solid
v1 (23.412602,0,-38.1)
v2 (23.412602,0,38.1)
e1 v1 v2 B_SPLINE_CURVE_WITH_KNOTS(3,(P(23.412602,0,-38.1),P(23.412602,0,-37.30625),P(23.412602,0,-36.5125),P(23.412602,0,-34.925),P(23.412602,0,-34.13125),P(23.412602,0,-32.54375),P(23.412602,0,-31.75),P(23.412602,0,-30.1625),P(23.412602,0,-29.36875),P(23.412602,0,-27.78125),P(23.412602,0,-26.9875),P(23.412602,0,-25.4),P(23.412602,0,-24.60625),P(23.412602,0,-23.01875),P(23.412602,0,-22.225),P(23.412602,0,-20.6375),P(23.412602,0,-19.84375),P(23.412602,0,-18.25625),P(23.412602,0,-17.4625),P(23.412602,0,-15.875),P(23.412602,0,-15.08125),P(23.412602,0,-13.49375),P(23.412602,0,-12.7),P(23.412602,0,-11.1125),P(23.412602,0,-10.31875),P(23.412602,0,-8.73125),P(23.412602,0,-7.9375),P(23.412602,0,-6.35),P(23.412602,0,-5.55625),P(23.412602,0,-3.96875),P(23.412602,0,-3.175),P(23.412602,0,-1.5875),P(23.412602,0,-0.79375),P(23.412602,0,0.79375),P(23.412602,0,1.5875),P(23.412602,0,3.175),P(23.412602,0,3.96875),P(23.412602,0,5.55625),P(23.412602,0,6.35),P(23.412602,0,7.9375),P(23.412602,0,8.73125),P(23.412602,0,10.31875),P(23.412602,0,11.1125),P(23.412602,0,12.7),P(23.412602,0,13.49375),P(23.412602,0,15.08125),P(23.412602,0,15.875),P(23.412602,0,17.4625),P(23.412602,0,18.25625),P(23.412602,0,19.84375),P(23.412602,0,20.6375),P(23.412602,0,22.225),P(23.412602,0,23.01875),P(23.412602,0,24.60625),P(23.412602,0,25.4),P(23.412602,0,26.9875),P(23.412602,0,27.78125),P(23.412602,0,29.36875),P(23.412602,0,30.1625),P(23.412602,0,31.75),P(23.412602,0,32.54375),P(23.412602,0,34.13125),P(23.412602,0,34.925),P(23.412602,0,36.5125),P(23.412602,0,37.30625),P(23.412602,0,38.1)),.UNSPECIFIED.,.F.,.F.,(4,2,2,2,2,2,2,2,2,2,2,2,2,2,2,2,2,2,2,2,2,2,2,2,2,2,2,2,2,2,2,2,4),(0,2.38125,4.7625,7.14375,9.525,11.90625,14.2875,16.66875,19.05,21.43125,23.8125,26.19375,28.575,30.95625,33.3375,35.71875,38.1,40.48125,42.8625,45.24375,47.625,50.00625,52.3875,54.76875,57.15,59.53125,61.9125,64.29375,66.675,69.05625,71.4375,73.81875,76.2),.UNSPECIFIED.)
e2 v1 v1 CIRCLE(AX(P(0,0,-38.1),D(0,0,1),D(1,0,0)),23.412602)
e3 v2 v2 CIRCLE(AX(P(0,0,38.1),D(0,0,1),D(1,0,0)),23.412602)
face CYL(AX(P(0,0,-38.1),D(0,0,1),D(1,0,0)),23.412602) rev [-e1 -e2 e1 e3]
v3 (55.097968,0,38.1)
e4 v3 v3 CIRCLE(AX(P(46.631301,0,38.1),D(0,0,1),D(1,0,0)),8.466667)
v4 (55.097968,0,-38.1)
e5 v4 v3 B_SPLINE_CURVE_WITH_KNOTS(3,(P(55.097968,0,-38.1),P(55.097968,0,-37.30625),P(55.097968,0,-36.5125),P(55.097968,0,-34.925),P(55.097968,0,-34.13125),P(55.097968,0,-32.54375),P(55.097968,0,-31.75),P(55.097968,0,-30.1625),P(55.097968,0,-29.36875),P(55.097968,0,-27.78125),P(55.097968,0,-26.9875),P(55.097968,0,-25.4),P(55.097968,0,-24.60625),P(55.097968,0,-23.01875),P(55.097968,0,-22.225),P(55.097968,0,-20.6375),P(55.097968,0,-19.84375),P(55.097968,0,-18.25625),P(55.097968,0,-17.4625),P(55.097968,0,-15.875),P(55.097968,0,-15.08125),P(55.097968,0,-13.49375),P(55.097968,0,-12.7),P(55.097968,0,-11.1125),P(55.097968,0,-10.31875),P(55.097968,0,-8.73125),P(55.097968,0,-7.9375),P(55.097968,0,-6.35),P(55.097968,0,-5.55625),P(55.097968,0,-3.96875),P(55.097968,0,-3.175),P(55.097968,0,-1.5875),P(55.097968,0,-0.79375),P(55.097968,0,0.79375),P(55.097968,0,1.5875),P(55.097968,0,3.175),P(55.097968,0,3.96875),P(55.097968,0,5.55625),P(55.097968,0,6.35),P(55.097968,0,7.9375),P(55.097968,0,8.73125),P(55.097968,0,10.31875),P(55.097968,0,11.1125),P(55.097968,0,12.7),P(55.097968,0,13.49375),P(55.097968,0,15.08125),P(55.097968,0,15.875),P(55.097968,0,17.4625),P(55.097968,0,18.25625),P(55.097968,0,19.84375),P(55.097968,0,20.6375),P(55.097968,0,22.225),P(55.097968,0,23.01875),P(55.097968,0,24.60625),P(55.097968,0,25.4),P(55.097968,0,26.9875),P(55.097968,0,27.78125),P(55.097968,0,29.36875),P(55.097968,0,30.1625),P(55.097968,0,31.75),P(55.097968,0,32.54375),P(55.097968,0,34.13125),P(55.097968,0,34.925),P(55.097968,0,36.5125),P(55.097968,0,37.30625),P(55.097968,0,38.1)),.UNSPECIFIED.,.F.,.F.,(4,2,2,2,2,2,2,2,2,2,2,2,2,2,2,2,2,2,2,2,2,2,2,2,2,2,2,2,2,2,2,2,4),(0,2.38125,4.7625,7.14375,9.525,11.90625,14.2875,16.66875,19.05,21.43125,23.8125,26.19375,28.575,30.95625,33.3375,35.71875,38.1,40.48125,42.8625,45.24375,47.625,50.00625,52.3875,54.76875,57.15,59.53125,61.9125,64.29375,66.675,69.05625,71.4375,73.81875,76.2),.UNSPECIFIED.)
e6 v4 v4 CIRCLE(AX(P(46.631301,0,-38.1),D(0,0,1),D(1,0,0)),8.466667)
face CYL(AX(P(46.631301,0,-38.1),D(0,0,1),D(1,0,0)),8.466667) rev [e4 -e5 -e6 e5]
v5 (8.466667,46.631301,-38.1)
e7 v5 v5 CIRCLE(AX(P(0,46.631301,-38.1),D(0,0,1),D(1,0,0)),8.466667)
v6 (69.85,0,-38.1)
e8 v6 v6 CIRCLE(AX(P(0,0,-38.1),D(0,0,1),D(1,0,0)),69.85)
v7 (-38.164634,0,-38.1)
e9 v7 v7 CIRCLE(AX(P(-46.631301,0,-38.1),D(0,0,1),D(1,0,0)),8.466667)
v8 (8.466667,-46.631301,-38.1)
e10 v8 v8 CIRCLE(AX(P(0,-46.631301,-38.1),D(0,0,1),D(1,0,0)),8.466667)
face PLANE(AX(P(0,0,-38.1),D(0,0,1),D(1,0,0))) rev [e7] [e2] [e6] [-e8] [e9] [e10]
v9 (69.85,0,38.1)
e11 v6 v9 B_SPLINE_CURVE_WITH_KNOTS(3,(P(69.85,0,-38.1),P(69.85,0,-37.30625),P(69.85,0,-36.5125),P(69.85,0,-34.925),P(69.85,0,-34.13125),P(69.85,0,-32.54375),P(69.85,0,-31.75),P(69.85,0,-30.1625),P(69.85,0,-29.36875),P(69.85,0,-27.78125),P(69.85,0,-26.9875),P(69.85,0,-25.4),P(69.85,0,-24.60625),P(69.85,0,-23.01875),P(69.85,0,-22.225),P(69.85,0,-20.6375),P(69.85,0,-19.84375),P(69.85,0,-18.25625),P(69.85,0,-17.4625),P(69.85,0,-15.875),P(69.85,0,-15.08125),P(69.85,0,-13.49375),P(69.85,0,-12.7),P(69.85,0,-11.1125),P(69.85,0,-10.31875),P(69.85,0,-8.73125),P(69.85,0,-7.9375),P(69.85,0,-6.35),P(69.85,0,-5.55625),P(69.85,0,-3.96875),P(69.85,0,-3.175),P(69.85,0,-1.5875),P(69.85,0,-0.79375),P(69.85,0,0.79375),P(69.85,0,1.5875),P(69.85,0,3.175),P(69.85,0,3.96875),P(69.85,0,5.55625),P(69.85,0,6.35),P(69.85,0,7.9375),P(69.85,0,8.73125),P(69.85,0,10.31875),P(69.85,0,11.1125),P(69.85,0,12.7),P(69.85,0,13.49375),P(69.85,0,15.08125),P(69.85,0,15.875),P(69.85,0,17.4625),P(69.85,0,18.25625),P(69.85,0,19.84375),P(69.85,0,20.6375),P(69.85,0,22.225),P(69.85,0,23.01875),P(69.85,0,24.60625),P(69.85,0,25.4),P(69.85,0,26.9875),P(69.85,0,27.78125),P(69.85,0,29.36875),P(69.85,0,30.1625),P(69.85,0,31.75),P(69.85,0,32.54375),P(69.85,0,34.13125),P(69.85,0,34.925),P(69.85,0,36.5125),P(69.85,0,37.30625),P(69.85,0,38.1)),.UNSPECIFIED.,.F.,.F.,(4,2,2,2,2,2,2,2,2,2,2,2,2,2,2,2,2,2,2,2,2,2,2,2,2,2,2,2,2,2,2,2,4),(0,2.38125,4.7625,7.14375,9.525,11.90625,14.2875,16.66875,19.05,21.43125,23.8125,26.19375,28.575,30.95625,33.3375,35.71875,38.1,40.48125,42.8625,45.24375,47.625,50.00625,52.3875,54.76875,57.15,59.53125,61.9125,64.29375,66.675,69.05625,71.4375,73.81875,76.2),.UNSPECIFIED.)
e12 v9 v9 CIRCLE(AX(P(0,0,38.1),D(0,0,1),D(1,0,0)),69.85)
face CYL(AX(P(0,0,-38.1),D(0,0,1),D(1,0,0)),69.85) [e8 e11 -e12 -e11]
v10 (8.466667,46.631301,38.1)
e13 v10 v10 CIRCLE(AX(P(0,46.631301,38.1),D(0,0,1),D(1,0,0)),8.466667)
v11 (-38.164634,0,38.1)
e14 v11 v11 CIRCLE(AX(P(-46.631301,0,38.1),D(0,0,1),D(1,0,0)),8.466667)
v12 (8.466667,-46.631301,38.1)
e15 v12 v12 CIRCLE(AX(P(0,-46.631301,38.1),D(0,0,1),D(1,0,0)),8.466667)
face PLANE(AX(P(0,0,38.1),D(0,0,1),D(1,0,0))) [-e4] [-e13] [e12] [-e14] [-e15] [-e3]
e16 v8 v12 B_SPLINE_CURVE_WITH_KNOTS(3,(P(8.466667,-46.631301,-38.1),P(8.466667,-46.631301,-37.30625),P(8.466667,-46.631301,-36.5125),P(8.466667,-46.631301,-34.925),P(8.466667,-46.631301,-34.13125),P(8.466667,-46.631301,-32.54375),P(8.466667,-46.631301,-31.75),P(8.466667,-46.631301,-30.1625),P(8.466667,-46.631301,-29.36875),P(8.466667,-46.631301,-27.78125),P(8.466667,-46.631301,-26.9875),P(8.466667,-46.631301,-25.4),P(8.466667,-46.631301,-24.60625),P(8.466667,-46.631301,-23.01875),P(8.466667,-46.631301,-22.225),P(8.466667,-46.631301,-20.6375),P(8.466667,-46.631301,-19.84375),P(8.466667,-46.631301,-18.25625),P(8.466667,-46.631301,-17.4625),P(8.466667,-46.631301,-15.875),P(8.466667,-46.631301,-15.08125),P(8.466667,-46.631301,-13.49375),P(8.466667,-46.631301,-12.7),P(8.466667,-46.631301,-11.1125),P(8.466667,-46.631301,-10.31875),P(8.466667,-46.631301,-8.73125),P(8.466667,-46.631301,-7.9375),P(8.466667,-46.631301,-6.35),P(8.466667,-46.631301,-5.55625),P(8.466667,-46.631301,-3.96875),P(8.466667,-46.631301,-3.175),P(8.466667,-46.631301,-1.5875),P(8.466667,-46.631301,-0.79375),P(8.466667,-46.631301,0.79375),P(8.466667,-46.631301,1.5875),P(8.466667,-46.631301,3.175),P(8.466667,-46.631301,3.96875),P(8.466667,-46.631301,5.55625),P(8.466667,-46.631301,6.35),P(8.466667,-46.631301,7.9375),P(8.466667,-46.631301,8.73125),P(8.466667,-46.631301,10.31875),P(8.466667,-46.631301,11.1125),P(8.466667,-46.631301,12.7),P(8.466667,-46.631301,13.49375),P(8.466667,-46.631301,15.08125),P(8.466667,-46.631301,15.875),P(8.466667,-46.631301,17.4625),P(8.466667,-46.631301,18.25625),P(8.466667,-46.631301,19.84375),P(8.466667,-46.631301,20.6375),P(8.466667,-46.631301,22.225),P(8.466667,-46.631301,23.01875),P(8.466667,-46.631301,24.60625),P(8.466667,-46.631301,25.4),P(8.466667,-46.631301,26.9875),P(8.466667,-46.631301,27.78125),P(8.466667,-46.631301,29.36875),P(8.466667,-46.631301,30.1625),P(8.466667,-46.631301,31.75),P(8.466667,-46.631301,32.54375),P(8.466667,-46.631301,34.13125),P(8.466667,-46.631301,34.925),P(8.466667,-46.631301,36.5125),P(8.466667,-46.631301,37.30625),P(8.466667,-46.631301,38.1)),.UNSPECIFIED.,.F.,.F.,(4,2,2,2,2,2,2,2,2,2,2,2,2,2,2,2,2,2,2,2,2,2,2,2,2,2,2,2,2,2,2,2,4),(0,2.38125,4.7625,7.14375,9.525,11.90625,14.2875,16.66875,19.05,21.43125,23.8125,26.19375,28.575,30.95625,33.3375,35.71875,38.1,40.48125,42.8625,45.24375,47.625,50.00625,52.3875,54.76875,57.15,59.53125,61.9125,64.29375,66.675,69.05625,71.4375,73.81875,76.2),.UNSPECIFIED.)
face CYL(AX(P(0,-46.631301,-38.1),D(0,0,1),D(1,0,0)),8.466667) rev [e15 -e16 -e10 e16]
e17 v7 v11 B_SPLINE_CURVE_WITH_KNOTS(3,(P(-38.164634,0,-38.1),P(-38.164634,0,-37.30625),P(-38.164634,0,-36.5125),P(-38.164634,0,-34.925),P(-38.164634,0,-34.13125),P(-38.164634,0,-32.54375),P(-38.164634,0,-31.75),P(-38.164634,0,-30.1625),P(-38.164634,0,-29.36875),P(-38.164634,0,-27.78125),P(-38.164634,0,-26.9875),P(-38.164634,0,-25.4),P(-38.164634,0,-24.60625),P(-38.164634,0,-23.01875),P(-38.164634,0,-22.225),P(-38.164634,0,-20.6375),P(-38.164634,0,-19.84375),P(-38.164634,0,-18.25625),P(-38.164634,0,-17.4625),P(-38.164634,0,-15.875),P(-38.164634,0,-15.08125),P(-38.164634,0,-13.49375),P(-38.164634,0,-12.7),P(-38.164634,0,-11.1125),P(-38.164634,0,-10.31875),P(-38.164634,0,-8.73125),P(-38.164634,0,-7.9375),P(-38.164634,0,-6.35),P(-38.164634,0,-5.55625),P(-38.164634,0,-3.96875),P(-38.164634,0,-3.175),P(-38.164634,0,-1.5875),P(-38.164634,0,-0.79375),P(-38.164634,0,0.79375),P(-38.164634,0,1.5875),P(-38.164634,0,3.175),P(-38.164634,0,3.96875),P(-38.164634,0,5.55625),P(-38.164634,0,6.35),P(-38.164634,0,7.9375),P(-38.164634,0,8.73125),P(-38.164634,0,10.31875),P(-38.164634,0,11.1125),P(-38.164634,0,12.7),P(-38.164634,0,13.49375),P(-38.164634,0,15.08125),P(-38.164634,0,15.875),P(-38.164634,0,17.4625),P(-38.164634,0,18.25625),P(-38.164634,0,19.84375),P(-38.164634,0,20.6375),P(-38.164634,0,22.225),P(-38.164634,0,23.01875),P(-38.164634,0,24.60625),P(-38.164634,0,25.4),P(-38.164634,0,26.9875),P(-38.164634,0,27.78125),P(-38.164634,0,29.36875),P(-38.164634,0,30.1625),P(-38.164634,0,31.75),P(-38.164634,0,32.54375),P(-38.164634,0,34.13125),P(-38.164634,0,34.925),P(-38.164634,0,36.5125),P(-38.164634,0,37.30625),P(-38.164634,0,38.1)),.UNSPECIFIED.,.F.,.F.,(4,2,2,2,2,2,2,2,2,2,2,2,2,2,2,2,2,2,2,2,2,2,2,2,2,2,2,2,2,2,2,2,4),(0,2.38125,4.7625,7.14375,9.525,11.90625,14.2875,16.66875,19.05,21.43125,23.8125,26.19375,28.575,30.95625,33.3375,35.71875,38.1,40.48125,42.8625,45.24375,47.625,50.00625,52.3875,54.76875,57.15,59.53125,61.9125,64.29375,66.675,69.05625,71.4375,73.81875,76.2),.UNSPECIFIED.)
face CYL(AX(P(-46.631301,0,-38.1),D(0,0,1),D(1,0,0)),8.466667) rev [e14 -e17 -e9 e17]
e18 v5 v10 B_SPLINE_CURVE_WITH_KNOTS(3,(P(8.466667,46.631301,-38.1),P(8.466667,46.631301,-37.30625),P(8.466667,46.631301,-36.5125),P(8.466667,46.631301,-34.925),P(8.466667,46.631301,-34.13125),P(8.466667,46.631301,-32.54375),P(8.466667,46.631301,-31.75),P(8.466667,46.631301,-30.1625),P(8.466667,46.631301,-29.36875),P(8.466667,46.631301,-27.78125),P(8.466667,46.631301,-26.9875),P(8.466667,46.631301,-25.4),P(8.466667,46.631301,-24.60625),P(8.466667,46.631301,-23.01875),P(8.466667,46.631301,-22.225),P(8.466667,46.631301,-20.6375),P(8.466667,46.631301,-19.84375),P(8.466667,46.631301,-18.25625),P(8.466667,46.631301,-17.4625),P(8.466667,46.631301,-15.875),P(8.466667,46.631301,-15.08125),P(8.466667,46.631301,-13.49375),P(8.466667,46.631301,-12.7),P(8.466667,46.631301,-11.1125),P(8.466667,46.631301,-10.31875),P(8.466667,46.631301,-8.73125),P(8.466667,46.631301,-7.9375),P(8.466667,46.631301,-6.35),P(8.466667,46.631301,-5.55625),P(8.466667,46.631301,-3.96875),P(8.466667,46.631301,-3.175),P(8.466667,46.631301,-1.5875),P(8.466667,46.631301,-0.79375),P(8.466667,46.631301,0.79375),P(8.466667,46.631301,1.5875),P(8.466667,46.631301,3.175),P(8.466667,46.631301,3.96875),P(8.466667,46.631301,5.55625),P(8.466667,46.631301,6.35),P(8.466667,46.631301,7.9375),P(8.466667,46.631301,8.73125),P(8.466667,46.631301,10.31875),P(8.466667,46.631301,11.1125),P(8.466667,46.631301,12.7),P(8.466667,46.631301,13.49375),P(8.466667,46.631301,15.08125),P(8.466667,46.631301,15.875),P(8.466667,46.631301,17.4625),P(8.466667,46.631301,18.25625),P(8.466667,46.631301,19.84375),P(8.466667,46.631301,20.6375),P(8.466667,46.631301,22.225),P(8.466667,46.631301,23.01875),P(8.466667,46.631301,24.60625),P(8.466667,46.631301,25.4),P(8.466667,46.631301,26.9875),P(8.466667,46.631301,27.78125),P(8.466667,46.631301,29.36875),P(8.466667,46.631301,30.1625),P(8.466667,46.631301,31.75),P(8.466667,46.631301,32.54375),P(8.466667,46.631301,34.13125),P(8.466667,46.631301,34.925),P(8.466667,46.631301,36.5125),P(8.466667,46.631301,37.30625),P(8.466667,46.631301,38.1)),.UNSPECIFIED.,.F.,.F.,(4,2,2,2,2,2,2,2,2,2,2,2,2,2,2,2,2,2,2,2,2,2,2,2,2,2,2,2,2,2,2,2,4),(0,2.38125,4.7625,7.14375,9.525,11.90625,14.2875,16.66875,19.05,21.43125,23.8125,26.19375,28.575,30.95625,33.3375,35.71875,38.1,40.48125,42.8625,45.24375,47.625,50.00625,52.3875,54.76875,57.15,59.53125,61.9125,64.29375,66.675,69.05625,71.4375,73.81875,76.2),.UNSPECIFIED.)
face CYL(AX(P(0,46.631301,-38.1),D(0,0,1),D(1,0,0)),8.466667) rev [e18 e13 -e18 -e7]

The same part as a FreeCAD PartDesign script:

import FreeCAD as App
import Part
import Sketcher
Q = App.Units.Quantity

doc = App.newDocument("Part")
body = doc.addObject("PartDesign::Body", "Body")

# Sketch on XY plane
sketch1 = body.newObject("Sketcher::SketchObject", "Sketch")
sketch1.AttachmentSupport = (doc.getObject("XY_Plane"), [""])
sketch1.MapMode = "FlatFace"
sketch1.addGeometry(Part.Circle(App.Vector(0, 0, 0), App.Vector(0, 0, 1), 70), False)
sketch1.addGeometry(Part.Circle(App.Vector(0, -47, 0), App.Vector(0, 0, 1), 8), False)
sketch1.addGeometry(Part.Circle(App.Vector(-47, 0, 0), App.Vector(0, 0, 1), 8), False)
sketch1.addGeometry(Part.Circle(App.Vector(0, 0, 0), App.Vector(0, 0, 1), 23), False)
sketch1.addGeometry(Part.Circle(App.Vector(47, 0, 0), App.Vector(0, 0, 1), 8), False)
sketch1.addGeometry(Part.Circle(App.Vector(0, 47, 0), App.Vector(0, 0, 1), 8), False)
sketch1.addConstraint(Sketcher.Constraint("Coincident", 0, 3, -1, 1))
sketch1.addConstraint(Sketcher.Constraint("Coincident", 3, 3, -1, 1))
sketch1.addConstraint(Sketcher.Constraint("Equal", 1, 2))
sketch1.addConstraint(Sketcher.Constraint("Equal", 2, 4))
sketch1.addConstraint(Sketcher.Constraint("Equal", 4, 5))
sketch1.addConstraint(Sketcher.Constraint("Symmetric", 2, 3, 4, 3, -1, 1))
sketch1.addConstraint(Sketcher.Constraint("Symmetric", 1, 3, 5, 3, -1, 1))
sketch1.addConstraint(Sketcher.Constraint("PointOnObject", 1, 3, -2))
sketch1.addConstraint(Sketcher.Constraint("PointOnObject", 2, 3, -1))
sketch1.addConstraint(Sketcher.Constraint("Diameter", 0, Q("5.5 in")))
sketch1.addConstraint(Sketcher.Constraint("Diameter", 1, 16.933333))
sketch1.addConstraint(Sketcher.Constraint("Diameter", 3, 46.825204))
sketch1.addConstraint(Sketcher.Constraint("DistanceY", 1, 3, -1, 1, 46.631301))
sketch1.addConstraint(Sketcher.Constraint("DistanceX", 2, 3, -1, 1, 46.631301))
pad1 = body.newObject("PartDesign::Pad", "Pad")
pad1.Profile = sketch1
pad1.Type = "TwoLengths"
pad1.Length = Q("1.5 in")
pad1.Length2 = Q("1.5 in")

doc.recompute()
